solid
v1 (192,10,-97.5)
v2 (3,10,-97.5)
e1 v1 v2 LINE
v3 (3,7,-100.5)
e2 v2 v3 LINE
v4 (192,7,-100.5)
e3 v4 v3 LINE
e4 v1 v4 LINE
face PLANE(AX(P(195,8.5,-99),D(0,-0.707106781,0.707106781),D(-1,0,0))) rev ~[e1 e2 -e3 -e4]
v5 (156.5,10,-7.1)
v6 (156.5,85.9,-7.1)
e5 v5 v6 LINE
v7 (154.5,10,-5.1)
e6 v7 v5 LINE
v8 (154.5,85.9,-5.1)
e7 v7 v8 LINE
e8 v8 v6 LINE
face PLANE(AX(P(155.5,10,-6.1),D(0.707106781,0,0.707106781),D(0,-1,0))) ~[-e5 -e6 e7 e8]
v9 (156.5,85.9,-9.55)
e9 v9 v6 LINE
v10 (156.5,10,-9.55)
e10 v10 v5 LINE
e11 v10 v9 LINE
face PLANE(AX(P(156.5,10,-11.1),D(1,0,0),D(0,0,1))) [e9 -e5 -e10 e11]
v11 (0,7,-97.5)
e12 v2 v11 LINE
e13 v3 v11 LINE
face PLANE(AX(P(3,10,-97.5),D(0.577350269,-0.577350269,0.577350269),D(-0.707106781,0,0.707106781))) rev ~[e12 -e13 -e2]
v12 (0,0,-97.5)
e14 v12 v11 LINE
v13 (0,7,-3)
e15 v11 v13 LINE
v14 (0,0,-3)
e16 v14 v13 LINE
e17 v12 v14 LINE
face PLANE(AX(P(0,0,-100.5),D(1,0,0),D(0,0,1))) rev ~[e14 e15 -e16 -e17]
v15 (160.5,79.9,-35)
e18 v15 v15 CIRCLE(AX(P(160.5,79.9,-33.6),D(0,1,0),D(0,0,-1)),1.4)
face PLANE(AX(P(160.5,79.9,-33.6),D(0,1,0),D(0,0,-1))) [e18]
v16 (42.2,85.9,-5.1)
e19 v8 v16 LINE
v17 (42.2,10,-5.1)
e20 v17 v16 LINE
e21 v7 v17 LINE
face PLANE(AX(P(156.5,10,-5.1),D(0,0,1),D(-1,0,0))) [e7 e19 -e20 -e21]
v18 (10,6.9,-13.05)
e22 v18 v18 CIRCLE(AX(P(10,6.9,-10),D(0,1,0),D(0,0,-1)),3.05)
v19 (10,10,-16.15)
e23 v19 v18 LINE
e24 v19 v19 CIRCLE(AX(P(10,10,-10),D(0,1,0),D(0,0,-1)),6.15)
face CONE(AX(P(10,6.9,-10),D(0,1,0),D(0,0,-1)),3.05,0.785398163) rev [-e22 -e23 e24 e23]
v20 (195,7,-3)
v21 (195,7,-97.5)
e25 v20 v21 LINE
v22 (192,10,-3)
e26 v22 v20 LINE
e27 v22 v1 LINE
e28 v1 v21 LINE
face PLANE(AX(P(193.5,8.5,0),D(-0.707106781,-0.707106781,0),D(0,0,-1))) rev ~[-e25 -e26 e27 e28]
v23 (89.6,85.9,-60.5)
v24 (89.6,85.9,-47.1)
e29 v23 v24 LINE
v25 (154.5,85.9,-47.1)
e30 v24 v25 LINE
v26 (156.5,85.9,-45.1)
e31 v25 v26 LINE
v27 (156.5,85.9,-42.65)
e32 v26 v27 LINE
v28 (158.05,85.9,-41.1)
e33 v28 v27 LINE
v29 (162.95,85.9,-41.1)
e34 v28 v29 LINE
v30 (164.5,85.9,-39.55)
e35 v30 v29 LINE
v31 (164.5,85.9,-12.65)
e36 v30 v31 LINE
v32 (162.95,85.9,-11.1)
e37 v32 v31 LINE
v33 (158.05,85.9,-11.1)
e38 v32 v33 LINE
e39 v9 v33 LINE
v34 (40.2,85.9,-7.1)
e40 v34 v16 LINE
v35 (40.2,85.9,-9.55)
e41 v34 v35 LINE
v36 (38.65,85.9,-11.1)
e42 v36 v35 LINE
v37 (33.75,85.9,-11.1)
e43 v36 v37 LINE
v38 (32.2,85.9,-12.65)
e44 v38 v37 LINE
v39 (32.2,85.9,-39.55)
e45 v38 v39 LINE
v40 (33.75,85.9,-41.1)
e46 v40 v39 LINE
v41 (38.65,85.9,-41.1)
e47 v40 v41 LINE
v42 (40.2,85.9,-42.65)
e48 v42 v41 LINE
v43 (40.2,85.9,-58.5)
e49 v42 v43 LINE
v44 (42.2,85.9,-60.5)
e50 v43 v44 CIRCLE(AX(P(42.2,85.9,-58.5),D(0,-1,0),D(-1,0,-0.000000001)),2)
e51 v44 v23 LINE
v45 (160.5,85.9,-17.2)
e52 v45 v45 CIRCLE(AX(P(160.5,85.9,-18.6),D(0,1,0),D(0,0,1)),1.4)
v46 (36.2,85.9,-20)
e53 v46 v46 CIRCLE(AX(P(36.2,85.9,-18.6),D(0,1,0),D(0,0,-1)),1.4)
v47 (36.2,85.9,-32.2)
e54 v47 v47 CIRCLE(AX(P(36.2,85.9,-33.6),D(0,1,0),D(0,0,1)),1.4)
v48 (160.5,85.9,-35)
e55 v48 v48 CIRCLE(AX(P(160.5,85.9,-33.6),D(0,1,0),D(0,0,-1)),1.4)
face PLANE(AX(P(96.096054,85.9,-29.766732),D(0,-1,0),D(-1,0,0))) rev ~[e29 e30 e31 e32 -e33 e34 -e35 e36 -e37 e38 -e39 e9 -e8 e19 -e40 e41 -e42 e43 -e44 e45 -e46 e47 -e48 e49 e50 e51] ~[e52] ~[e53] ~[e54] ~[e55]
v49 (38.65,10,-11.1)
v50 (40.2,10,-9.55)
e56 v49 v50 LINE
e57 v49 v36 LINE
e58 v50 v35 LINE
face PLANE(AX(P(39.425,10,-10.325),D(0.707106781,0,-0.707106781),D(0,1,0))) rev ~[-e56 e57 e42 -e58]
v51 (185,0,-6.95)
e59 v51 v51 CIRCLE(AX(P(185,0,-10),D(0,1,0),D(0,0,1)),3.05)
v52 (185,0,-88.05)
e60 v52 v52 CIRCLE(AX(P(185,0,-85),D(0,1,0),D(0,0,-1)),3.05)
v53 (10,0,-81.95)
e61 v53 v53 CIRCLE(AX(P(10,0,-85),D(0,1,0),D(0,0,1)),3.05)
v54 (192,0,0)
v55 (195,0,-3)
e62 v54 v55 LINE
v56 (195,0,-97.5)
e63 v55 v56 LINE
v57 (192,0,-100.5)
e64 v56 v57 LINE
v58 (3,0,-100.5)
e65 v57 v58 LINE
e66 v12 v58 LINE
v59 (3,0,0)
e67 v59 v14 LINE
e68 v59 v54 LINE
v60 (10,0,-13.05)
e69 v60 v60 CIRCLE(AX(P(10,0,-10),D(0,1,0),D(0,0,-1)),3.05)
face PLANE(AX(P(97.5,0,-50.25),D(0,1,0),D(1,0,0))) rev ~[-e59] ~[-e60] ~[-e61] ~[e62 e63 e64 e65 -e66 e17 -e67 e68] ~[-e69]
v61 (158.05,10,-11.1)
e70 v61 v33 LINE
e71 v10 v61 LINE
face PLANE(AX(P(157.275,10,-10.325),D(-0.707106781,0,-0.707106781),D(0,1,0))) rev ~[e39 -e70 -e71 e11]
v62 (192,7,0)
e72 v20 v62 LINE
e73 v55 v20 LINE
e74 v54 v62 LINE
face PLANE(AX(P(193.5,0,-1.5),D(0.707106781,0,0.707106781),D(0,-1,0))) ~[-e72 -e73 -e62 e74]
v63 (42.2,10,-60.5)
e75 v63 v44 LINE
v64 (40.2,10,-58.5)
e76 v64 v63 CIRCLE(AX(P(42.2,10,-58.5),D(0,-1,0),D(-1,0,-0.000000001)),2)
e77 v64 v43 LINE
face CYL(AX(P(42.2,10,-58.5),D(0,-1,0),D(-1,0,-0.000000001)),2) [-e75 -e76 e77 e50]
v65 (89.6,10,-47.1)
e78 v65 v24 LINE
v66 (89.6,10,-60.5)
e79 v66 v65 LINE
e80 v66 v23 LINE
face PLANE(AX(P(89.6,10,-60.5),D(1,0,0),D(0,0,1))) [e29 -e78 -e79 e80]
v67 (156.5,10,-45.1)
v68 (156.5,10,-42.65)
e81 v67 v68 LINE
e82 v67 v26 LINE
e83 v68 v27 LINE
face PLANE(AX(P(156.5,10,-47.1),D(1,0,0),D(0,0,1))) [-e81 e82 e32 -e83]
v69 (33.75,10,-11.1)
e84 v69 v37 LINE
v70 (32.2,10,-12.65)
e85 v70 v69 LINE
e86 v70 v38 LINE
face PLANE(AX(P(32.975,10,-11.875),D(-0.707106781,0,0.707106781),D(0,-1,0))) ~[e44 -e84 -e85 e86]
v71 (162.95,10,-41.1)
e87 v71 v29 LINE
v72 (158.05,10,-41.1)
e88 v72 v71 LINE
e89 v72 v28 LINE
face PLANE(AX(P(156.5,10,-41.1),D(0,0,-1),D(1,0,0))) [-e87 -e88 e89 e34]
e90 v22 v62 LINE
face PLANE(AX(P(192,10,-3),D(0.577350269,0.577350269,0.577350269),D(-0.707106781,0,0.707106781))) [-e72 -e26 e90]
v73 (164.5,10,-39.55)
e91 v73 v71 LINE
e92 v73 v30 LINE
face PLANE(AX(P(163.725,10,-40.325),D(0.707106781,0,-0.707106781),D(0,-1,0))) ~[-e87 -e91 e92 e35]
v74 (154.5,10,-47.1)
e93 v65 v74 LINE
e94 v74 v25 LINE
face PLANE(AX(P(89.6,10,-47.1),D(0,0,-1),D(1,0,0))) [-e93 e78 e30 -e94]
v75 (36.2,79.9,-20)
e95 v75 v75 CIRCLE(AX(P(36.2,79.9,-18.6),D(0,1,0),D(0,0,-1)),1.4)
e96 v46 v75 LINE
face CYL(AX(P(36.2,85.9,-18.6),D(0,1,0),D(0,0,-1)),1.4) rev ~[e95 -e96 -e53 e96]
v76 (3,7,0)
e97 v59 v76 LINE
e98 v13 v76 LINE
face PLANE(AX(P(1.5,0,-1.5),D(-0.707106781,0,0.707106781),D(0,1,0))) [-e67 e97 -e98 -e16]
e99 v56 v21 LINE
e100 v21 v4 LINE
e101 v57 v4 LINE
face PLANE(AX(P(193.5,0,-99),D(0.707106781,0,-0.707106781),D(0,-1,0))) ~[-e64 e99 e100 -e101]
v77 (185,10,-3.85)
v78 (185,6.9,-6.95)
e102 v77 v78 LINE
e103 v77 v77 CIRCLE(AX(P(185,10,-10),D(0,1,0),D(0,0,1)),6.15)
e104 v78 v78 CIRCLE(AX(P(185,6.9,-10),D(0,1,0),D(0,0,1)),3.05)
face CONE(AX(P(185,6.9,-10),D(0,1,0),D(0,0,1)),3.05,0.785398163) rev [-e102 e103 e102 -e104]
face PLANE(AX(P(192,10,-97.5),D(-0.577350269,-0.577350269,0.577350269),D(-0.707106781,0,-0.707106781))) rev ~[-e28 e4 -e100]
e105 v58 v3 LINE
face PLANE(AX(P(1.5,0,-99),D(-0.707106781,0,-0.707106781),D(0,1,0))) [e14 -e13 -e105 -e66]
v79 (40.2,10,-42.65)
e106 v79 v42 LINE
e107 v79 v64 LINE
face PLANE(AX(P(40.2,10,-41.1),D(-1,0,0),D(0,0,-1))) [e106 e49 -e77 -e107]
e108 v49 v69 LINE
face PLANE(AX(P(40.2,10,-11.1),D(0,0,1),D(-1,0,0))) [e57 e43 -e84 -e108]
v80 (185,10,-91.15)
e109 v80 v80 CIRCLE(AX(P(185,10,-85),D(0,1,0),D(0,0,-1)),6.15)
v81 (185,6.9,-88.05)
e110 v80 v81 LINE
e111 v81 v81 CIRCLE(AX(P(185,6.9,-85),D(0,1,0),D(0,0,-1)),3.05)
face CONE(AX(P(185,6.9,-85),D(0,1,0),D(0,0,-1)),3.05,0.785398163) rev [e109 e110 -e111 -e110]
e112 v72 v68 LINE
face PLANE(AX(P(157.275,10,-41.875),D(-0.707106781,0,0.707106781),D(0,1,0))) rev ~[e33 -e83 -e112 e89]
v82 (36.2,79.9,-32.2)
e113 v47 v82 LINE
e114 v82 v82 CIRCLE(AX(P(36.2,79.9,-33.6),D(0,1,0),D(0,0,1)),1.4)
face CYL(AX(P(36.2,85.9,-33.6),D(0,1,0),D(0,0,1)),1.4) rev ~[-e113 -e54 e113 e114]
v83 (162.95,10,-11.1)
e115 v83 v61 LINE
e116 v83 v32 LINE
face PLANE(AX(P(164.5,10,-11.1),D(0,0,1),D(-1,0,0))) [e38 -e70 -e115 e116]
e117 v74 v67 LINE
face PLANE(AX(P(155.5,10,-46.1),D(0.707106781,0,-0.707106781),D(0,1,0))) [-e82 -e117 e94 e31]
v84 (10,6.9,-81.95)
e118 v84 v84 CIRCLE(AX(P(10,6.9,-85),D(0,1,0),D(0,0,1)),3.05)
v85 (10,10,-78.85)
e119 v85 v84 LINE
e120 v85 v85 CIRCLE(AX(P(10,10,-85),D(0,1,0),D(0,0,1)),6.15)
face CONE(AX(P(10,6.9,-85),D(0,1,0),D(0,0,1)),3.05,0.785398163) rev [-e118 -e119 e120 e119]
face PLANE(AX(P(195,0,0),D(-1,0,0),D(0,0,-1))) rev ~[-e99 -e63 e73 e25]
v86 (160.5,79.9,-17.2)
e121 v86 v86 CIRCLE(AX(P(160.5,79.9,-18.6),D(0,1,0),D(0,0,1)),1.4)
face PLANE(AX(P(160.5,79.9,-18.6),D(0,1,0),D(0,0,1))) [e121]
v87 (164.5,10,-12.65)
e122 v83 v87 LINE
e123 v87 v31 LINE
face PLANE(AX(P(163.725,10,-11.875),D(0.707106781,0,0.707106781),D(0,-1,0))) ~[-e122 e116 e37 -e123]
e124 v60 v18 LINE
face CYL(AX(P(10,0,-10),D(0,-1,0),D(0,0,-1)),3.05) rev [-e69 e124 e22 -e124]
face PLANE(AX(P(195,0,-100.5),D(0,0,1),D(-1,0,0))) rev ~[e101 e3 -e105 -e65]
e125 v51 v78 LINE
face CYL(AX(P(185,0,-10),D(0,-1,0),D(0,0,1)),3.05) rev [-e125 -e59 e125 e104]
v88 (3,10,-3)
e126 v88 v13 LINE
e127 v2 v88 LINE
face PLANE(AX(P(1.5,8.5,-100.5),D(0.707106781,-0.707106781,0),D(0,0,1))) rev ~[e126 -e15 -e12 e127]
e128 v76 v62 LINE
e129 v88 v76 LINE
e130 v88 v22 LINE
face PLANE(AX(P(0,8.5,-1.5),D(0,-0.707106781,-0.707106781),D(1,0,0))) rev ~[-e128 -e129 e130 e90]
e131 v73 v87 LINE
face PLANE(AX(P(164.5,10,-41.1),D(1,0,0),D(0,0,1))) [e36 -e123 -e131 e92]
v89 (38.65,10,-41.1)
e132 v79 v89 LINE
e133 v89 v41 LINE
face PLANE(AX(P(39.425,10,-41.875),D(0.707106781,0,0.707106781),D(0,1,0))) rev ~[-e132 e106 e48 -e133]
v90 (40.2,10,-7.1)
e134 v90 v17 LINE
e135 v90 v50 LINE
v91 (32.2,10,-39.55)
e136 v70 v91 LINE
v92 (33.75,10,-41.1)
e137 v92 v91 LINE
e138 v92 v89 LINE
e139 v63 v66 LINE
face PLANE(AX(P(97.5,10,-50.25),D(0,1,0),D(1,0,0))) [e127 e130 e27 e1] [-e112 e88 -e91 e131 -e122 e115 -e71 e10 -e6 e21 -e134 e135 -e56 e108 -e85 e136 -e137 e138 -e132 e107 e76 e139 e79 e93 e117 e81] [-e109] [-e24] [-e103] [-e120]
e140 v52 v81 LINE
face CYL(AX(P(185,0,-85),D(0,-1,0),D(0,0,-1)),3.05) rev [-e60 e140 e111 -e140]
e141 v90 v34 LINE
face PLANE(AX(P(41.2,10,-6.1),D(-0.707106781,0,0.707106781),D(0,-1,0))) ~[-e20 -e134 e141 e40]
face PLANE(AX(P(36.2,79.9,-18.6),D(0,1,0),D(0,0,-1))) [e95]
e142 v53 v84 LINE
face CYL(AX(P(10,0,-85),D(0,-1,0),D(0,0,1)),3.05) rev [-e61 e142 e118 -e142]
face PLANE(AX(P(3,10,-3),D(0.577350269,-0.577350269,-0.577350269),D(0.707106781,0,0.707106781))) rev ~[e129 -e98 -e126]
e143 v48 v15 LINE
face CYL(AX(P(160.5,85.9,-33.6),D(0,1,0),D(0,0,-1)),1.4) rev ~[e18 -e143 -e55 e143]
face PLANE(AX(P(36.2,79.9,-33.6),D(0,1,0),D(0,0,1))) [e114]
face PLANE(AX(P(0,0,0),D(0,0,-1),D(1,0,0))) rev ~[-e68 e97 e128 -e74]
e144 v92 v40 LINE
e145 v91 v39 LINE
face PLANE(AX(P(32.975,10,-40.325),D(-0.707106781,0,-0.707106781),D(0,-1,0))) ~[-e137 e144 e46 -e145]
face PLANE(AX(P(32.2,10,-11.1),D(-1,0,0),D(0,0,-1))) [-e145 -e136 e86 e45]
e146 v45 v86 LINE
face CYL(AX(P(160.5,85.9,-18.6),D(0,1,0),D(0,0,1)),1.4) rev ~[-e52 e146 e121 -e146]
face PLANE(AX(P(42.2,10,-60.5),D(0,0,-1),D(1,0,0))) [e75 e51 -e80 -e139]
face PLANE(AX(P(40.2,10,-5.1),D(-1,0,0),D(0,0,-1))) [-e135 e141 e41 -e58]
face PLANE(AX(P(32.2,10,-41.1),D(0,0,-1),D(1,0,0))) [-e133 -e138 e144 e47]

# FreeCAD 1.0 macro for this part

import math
import FreeCAD as App
import Part
import Sketcher

V = App.Vector


def edges_at(feature, points):
    """Names of the edges that pass closest to the given points."""
    edges = feature.Shape.Edges
    near = lambda p: min(range(len(edges)), key=lambda i: edges[i].distToShape(Part.Vertex(*p))[0])
    return sorted({f"Edge{near(p) + 1}" for p in points})


def add_polygon(sketch, points):
    """Adds a closed chain of lines whose ends are joined by coincident constraints."""
    first, n = sketch.GeometryCount, len(points)
    for a, b in zip(points, points[1:] + points[:1]):
        sketch.addGeometry(Part.LineSegment(App.Vector(*a, 0), App.Vector(*b, 0)), False)
    for i in range(n):
        sketch.addConstraint(Sketcher.Constraint("Coincident", first + i, 2, first + (i + 1) % n, 1))

doc = App.newDocument("Part")
body = doc.addObject("PartDesign::Body", "Body")

sketch1 = doc.addObject("Sketcher::SketchObject", "Sketch")
body.addObject(sketch1)
sketch1.AttachmentSupport = (doc.XZ_Plane, [""])
sketch1.MapMode = "FlatFace"
add_polygon(sketch1, [(0, 0), (195, 0), (195, -100.5), (0, -100.5)])
sketch1.addGeometry(Part.Circle(V(10, -10, 0), V(0, 0, 1), 3.05), False)
sketch1.addGeometry(Part.Circle(V(185, -10, 0), V(0, 0, 1), 3.05), False)
sketch1.addGeometry(Part.Circle(V(10, -85, 0), V(0, 0, 1), 3.05), False)
sketch1.addGeometry(Part.Circle(V(185, -85, 0), V(0, 0, 1), 3.05), False)
sketch1.addConstraint([
    Sketcher.Constraint("Horizontal", 0),
    Sketcher.Constraint("Vertical", 1),
    Sketcher.Constraint("Horizontal", 2),
    Sketcher.Constraint("Vertical", 3),
    Sketcher.Constraint("Coincident", 3, 2, -1, 1),
    Sketcher.Constraint("Equal", 4, 5),
    Sketcher.Constraint("Equal", 5, 6),
    Sketcher.Constraint("Equal", 6, 7),
    Sketcher.Constraint("Horizontal", 4, 3, 5, 3),
    Sketcher.Constraint("Horizontal", 6, 3, 7, 3),
    Sketcher.Constraint("Vertical", 4, 3, 6, 3),
    Sketcher.Constraint("Vertical", 5, 3, 7, 3),
    Sketcher.Constraint("Diameter", 4, 6.1),
    Sketcher.Constraint("DistanceX", 0, 1, 0, 2, 195.0),
    Sketcher.Constraint("DistanceY", 1, 2, 1, 1, 100.5),
    Sketcher.Constraint("DistanceX", -1, 1, 4, 3, 10.0),
    Sketcher.Constraint("DistanceY", 4, 3, -1, 1, 10.0),
    Sketcher.Constraint("DistanceX", -1, 1, 5, 3, 185.0),
    Sketcher.Constraint("DistanceY", 6, 3, -1, 1, 85.0),
])
pad1 = doc.addObject("PartDesign::Pad", "Pad")
body.addObject(pad1)
pad1.Profile = sketch1
pad1.Length = 10
pad1.Reversed = True

sketch2 = doc.addObject("Sketcher::SketchObject", "Sketch001")
body.addObject(sketch2)
sketch2.AttachmentSupport = (doc.XZ_Plane, [""])
sketch2.MapMode = "FlatFace"
sketch2.AttachmentOffset = App.Placement(V(0, 0, -10), App.Rotation())
sketch2.addGeometry([
    Part.LineSegment(V(89.6, -60.5, 0), V(42.2, -60.5, 0)),
    Part.ArcOfCircle(Part.Circle(V(42.2, -58.5, 0), V(0, 0, 1), 2), math.radians(-180), math.radians(-90)),
    Part.LineSegment(V(40.2, -58.5, 0), V(40.2, -41.1, 0)),
    Part.LineSegment(V(40.2, -41.1, 0), V(32.2, -41.1, 0)),
    Part.LineSegment(V(32.2, -41.1, 0), V(32.2, -11.1, 0)),
    Part.LineSegment(V(32.2, -11.1, 0), V(40.2, -11.1, 0)),
    Part.LineSegment(V(40.2, -11.1, 0), V(40.2, -5.1, 0)),
    Part.LineSegment(V(40.2, -5.1, 0), V(156.5, -5.1, 0)),
    Part.LineSegment(V(156.5, -5.1, 0), V(156.5, -11.1, 0)),
    Part.LineSegment(V(156.5, -11.1, 0), V(164.5, -11.1, 0)),
    Part.LineSegment(V(164.5, -11.1, 0), V(164.5, -41.1, 0)),
    Part.LineSegment(V(164.5, -41.1, 0), V(156.5, -41.1, 0)),
    Part.LineSegment(V(156.5, -41.1, 0), V(156.5, -47.1, 0)),
    Part.LineSegment(V(156.5, -47.1, 0), V(89.6, -47.1, 0)),
    Part.LineSegment(V(89.6, -47.1, 0), V(89.6, -60.5, 0)),
], False)
sketch2.addConstraint([
    Sketcher.Constraint("Tangent", 0, 2, 1, 2),
    Sketcher.Constraint("Tangent", 1, 1, 2, 1),
    Sketcher.Constraint("Coincident", 2, 2, 3, 1),
    Sketcher.Constraint("Coincident", 3, 2, 4, 1),
    Sketcher.Constraint("Coincident", 4, 2, 5, 1),
    Sketcher.Constraint("Coincident", 5, 2, 6, 1),
    Sketcher.Constraint("Coincident", 6, 2, 7, 1),
    Sketcher.Constraint("Coincident", 7, 2, 8, 1),
    Sketcher.Constraint("Coincident", 8, 2, 9, 1),
    Sketcher.Constraint("Coincident", 9, 2, 10, 1),
    Sketcher.Constraint("Coincident", 10, 2, 11, 1),
    Sketcher.Constraint("Coincident", 11, 2, 12, 1),
    Sketcher.Constraint("Coincident", 12, 2, 13, 1),
    Sketcher.Constraint("Coincident", 13, 2, 14, 1),
    Sketcher.Constraint("Coincident", 14, 2, 0, 1),
    Sketcher.Constraint("Horizontal", 0),
    Sketcher.Constraint("Vertical", 2),
    Sketcher.Constraint("Horizontal", 3),
    Sketcher.Constraint("Vertical", 4),
    Sketcher.Constraint("Horizontal", 5),
    Sketcher.Constraint("Vertical", 6),
    Sketcher.Constraint("Horizontal", 7),
    Sketcher.Constraint("Vertical", 8),
    Sketcher.Constraint("Horizontal", 9),
    Sketcher.Constraint("Vertical", 10),
    Sketcher.Constraint("Horizontal", 11),
    Sketcher.Constraint("Vertical", 12),
    Sketcher.Constraint("Horizontal", 13),
    Sketcher.Constraint("Vertical", 14),
    Sketcher.Constraint("Horizontal", 5, 2, 8, 2),
    Sketcher.Constraint("Horizontal", 3, 2, 10, 2),
    Sketcher.Constraint("Vertical", 2, 2, 5, 2),
    Sketcher.Constraint("Vertical", 8, 2, 11, 2),
    Sketcher.Constraint("Equal", 5, 9),
    Sketcher.Constraint("Equal", 8, 12),
    Sketcher.Constraint("Radius", 1, 2.0),
    Sketcher.Constraint("DistanceX", 3, 2, 3, 1, 8.0),
    Sketcher.Constraint("DistanceY", 4, 1, 4, 2, 30.0),
    Sketcher.Constraint("DistanceY", 6, 1, 6, 2, 6.0),
    Sketcher.Constraint("DistanceX", 0, 2, 0, 1, 47.4),
    Sketcher.Constraint("DistanceX", 7, 1, 7, 2, 116.3),
    Sketcher.Constraint("DistanceY", 2, 1, 2, 2, 17.4),
    Sketcher.Constraint("DistanceX", -1, 1, 1, 3, 42.2),
    Sketcher.Constraint("DistanceY", 1, 3, -1, 1, 58.5),
])
pad2 = doc.addObject("PartDesign::Pad", "Pad001")
body.addObject(pad2)
pad2.Profile = sketch2
pad2.Length = 75.9
pad2.Reversed = True

sketch3 = doc.addObject("Sketcher::SketchObject", "Sketch002")
body.addObject(sketch3)
sketch3.AttachmentSupport = (doc.XZ_Plane, [""])
sketch3.MapMode = "FlatFace"
sketch3.AttachmentOffset = App.Placement(V(0, 0, -85.9), App.Rotation())
sketch3.addGeometry([
    Part.Circle(V(36.2, -33.6, 0), V(0, 0, 1), 1.4),
    Part.Circle(V(36.2, -18.6, 0), V(0, 0, 1), 1.4),
    Part.Circle(V(160.5, -18.6, 0), V(0, 0, 1), 1.4),
    Part.Circle(V(160.5, -33.6, 0), V(0, 0, 1), 1.4),
], False)
sketch3.addConstraint([
    Sketcher.Constraint("Equal", 0, 1),
    Sketcher.Constraint("Equal", 1, 2),
    Sketcher.Constraint("Equal", 2, 3),
    Sketcher.Constraint("Horizontal", 1, 3, 2, 3),
    Sketcher.Constraint("Horizontal", 0, 3, 3, 3),
    Sketcher.Constraint("Vertical", 0, 3, 1, 3),
    Sketcher.Constraint("Vertical", 2, 3, 3, 3),
    Sketcher.Constraint("Diameter", 0, 2.8),
    Sketcher.Constraint("DistanceY", 0, 3, 1, 3, 15.0),
    Sketcher.Constraint("DistanceX", -1, 1, 0, 3, 36.2),
    Sketcher.Constraint("DistanceY", 0, 3, -1, 1, 33.6),
    Sketcher.Constraint("DistanceX", -1, 1, 2, 3, 160.5),
])
pocket1 = doc.addObject("PartDesign::Pocket", "Pocket")
body.addObject(pocket1)
pocket1.Profile = sketch3
pocket1.Length = 6
pocket1.Reversed = True
doc.recompute()

chamfer = doc.addObject("PartDesign::Chamfer", "Chamfer")
body.addObject(chamfer)
chamfer.Base = (pocket1, edges_at(pocket1, [
    (40.2, 47.95, -41.1),
    (32.2, 47.95, -41.1),
    (32.2, 47.95, -11.1),
    (40.2, 47.95, -11.1),
    (156.5, 47.95, -11.1),
    (164.5, 47.95, -11.1),
    (164.5, 47.95, -41.1),
    (156.5, 47.95, -41.1),
]))
chamfer.Size = 1.55
doc.recompute()

chamfer2 = doc.addObject("PartDesign::Chamfer", "Chamfer001")
body.addObject(chamfer2)
chamfer2.Base = (chamfer, edges_at(chamfer, [(40.2, 47.95, -5.1), (156.5, 47.95, -5.1), (156.5, 47.95, -47.1)]))
chamfer2.Size = 2
doc.recompute()

chamfer3 = doc.addObject("PartDesign::Chamfer", "Chamfer002")
body.addObject(chamfer3)
chamfer3.Base = (chamfer2, edges_at(chamfer2, [
    (10, 10, -88.05),
    (185, 10, -81.95),
    (185, 10, -13.05),
    (10, 10, -6.95),
]))
chamfer3.Size = 3.1
doc.recompute()

chamfer4 = doc.addObject("PartDesign::Chamfer", "Chamfer003")
body.addObject(chamfer4)
chamfer4.Base = (chamfer3, edges_at(chamfer3, [
    (0, 5, -100.5),
    (195, 5, -100.5),
    (195, 5, 0),
    (0, 5, 0),
    (195, 10, -50.25),
    (97.5, 10, -100.5),
    (0, 10, -50.25),
    (97.5, 10, 0),
]))
chamfer4.Size = 3

doc.recompute()
